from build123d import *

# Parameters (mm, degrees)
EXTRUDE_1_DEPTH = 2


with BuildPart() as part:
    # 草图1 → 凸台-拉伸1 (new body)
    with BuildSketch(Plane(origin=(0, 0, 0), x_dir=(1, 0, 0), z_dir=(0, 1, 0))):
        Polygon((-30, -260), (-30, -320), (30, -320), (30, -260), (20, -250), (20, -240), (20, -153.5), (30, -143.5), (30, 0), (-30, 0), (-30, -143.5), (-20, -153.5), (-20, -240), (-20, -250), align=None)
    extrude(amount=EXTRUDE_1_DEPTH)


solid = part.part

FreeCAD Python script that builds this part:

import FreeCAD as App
import Part
import Sketcher

doc = App.newDocument("Part")
body = doc.addObject("PartDesign::Body", "Body")

# Sketch on XZ plane
sketch1 = body.newObject("Sketcher::SketchObject", "Sketch")
sketch1.AttachmentSupport = (doc.getObject("XZ_Plane"), [""])
sketch1.MapMode = "FlatFace"
sketch1.addGeometry([
    Part.LineSegment(App.Vector(-30, 260, 0), App.Vector(-30, 320, 0)),  # 0
    Part.LineSegment(App.Vector(-30, 320, 0), App.Vector(30, 320, 0)),  # 1
    Part.LineSegment(App.Vector(30, 320, 0), App.Vector(30, 260, 0)),  # 2
    Part.LineSegment(App.Vector(30, 260, 0), App.Vector(20, 250, 0)),  # 3
    Part.LineSegment(App.Vector(20, 250, 0), App.Vector(20, 153.5, 0)),  # 4
    Part.LineSegment(App.Vector(20, 153.5, 0), App.Vector(30, 143.5, 0)),  # 5
    Part.LineSegment(App.Vector(30, 143.5, 0), App.Vector(30, 0, 0)),  # 6
    Part.LineSegment(App.Vector(30, 0, 0), App.Vector(-30, 0, 0)),  # 7
    Part.LineSegment(App.Vector(-30, 0, 0), App.Vector(-30, 143.5, 0)),  # 8
    Part.LineSegment(App.Vector(-30, 143.5, 0), App.Vector(-20, 153.5, 0)),  # 9
    Part.LineSegment(App.Vector(-20, 153.5, 0), App.Vector(-20, 250, 0)),  # 10
    Part.LineSegment(App.Vector(-20, 250, 0), App.Vector(-30, 260, 0)),  # 11
], False)
sketch1.addConstraint([
    Sketcher.Constraint("Coincident", 0, 2, 1, 1),
    Sketcher.Constraint("Coincident", 1, 2, 2, 1),
    Sketcher.Constraint("Coincident", 2, 2, 3, 1),
    Sketcher.Constraint("Coincident", 3, 2, 4, 1),
    Sketcher.Constraint("Coincident", 4, 2, 5, 1),
    Sketcher.Constraint("Coincident", 5, 2, 6, 1),
    Sketcher.Constraint("Coincident", 6, 2, 7, 1),
    Sketcher.Constraint("Coincident", 7, 2, 8, 1),
    Sketcher.Constraint("Coincident", 8, 2, 9, 1),
    Sketcher.Constraint("Coincident", 9, 2, 10, 1),
    Sketcher.Constraint("Coincident", 10, 2, 11, 1),
    Sketcher.Constraint("Coincident", 11, 2, 0, 1),
    Sketcher.Constraint("Vertical", 0),
    Sketcher.Constraint("Horizontal", 1),
    Sketcher.Constraint("Vertical", 2),
    Sketcher.Constraint("Vertical", 4),
    Sketcher.Constraint("Vertical", 6),
    Sketcher.Constraint("Horizontal", 7),
    Sketcher.Constraint("Vertical", 8),
    Sketcher.Constraint("Vertical", 10),
    Sketcher.Constraint("Symmetric", 6, 2, 7, 2, -1, 1),
    Sketcher.Constraint("Symmetric", 4, 2, 9, 2, -2),
    Sketcher.Constraint("Symmetric", 2, 2, 11, 2, -2),
    Sketcher.Constraint("Perpendicular", 3, 5),
    Sketcher.Constraint("Perpendicular", 5, 9),
    Sketcher.Constraint("Perpendicular", 9, 11),
    Sketcher.Constraint("Horizontal", 5, 2, 8, 2),
    Sketcher.Constraint("Vertical", 2, 2, 5, 2),
    Sketcher.Constraint("Equal", 7, 0),
    Sketcher.Constraint("DistanceX", 1, 1, 1, 2, 60.0),
    Sketcher.Constraint("DistanceY", 4, 2, 4, 1, 96.5),
    Sketcher.Constraint("DistanceY", 6, 2, 6, 1, 143.5),
    Sketcher.Constraint("DistanceY", -1, 1, 0, 2, 320.0),
])
pad1 = body.newObject("PartDesign::Pad", "Pad")
pad1.Profile = sketch1
pad1.Length = 2
pad1.Reversed = True

doc.recompute()
